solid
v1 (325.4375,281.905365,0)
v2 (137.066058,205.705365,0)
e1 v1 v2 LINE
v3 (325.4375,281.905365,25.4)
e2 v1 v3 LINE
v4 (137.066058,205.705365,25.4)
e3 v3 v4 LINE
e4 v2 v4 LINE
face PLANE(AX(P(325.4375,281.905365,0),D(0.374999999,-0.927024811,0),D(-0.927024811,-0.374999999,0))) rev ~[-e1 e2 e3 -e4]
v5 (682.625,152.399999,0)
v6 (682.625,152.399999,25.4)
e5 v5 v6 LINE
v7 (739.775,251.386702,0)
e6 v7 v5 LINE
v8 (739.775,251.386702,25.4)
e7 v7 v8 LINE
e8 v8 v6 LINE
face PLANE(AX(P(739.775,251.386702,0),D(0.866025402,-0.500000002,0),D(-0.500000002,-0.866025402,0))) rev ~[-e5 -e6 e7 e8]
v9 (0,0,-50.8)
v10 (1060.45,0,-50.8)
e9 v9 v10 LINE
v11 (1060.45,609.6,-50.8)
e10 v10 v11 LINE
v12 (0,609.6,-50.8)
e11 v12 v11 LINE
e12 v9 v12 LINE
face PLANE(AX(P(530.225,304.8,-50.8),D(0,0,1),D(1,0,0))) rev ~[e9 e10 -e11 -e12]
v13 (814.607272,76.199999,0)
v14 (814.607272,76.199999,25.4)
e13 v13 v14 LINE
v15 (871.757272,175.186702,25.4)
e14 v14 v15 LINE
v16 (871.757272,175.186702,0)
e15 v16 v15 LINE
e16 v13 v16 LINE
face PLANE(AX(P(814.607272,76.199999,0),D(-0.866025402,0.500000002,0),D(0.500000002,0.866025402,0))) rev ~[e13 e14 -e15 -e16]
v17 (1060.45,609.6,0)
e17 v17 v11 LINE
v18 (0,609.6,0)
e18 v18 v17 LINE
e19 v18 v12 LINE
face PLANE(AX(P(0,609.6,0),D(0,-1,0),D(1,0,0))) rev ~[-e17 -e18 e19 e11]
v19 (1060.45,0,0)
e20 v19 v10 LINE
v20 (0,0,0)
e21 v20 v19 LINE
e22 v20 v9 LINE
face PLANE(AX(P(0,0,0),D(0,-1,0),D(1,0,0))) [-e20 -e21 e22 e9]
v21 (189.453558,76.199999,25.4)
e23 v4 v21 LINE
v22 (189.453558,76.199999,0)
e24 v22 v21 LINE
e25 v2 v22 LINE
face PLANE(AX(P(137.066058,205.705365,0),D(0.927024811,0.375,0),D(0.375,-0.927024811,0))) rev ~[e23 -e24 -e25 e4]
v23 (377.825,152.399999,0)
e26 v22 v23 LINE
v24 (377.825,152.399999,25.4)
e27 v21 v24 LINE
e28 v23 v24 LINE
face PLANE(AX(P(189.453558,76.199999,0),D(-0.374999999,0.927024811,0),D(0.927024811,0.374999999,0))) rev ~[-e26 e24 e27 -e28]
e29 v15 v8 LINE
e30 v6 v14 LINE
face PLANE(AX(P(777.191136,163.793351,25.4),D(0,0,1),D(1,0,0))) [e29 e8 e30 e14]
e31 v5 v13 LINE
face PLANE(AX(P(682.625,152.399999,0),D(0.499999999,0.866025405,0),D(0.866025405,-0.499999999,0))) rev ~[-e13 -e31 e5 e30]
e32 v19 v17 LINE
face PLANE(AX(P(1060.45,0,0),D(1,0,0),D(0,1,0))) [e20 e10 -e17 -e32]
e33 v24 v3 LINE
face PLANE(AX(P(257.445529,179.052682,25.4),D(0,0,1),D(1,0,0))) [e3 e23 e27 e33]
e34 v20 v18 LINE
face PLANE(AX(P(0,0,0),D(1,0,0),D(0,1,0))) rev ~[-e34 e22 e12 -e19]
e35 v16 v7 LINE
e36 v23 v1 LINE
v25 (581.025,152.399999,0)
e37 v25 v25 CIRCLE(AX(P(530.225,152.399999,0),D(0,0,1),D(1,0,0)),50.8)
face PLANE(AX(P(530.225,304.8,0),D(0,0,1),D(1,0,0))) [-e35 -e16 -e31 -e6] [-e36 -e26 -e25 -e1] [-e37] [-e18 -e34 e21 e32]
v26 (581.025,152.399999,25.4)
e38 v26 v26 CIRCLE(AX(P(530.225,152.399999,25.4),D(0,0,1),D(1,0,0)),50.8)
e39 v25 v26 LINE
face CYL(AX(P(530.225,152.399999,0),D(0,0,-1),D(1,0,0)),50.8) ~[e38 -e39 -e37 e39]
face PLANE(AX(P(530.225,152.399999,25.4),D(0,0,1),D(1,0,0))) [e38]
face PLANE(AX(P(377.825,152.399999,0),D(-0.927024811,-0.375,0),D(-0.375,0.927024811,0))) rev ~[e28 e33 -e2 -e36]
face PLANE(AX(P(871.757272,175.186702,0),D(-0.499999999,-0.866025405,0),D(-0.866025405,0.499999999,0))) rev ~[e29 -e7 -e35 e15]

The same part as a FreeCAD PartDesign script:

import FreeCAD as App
import Part
import Sketcher
Q = App.Units.Quantity


def add_polygon(sketch, points):
    """Adds a closed chain of lines whose ends are joined by coincident constraints."""
    first, n = sketch.GeometryCount, len(points)
    for a, b in zip(points, points[1:] + points[:1]):
        sketch.addGeometry(Part.LineSegment(App.Vector(*a, 0), App.Vector(*b, 0)), False)
    for i in range(n):
        sketch.addConstraint(Sketcher.Constraint("Coincident", first + i, 2, first + (i + 1) % n, 1))

doc = App.newDocument("Part")
body = doc.addObject("PartDesign::Body", "Body")

sketch1 = body.newObject("Sketcher::SketchObject", "Sketch")
sketch1.AttachmentSupport = (doc.getObject("XY_Plane"), [""])
sketch1.MapMode = "FlatFace"
add_polygon(sketch1, [(0, 610), (0, 0), (1060, 0), (1060, 610)])
sketch1.addConstraint([
    Sketcher.Constraint("Vertical", 0),
    Sketcher.Constraint("Horizontal", 1),
    Sketcher.Constraint("Vertical", 2),
    Sketcher.Constraint("Horizontal", 3),
    Sketcher.Constraint("Coincident", 0, 2, -1, 1),
    Sketcher.Constraint("DistanceY", 0, 2, 0, 1, Q("24 in")),
    Sketcher.Constraint("DistanceX", 1, 1, 1, 2, Q("41.75 in")),
])
pad1 = body.newObject("PartDesign::Pad", "Pad")
pad1.Profile = sketch1
pad1.Length = Q("2 in")
pad1.Reversed = True

sketch2 = body.newObject("Sketcher::SketchObject", "Sketch001")
sketch2.AttachmentSupport = (doc.getObject("XY_Plane"), [""])
sketch2.MapMode = "FlatFace"
add_polygon(sketch2, [(378, 152), (325, 282), (137, 206), (189, 76)])
add_polygon(sketch2, [(815, 76), (872, 175), (740, 251), (683, 152)])
sketch2.addGeometry(Part.Circle(App.Vector(530, 152, 0), App.Vector(0, 0, 1), 51), False)
sketch2.addConstraint([
    Sketcher.Constraint("Perpendicular", 0, 1),
    Sketcher.Constraint("Perpendicular", 1, 2),
    Sketcher.Constraint("Perpendicular", 2, 3),
    Sketcher.Constraint("Perpendicular", 4, 5),
    Sketcher.Constraint("Perpendicular", 5, 6),
    Sketcher.Constraint("Perpendicular", 6, 7),
    Sketcher.Constraint("Horizontal", 8, 3, 3, 2),
    Sketcher.Constraint("Horizontal", 3, 2, 6, 2),
    Sketcher.Constraint("Horizontal", 2, 2, 7, 2),
    Sketcher.Constraint("Diameter", 8, Q("4 in")),
    Sketcher.Constraint("Distance", 1, Q("8 in")),
    Sketcher.Constraint("Distance", 5, Q("6 in")),
    Sketcher.Constraint("DistanceY", -1, 1, 8, 3, Q("6 in")),
    Sketcher.Constraint("DistanceY", -1, 1, 2, 2, Q("3 in")),
    Sketcher.Constraint("DistanceX", 3, 2, 8, 3, Q("6 in")),
    Sketcher.Constraint("DistanceX", 8, 3, 6, 2, Q("6 in")),
    Sketcher.Constraint("Distance", 0, Q("5.5 in")),
    Sketcher.Constraint("Distance", 4, Q("4.5 in")),
    Sketcher.Constraint("DistanceX", -1, 1, 8, 3, Q("20.875 in")),
])
pad2 = body.newObject("PartDesign::Pad", "Pad001")
pad2.Profile = sketch2
pad2.Length = Q("1 in")

doc.recompute()
